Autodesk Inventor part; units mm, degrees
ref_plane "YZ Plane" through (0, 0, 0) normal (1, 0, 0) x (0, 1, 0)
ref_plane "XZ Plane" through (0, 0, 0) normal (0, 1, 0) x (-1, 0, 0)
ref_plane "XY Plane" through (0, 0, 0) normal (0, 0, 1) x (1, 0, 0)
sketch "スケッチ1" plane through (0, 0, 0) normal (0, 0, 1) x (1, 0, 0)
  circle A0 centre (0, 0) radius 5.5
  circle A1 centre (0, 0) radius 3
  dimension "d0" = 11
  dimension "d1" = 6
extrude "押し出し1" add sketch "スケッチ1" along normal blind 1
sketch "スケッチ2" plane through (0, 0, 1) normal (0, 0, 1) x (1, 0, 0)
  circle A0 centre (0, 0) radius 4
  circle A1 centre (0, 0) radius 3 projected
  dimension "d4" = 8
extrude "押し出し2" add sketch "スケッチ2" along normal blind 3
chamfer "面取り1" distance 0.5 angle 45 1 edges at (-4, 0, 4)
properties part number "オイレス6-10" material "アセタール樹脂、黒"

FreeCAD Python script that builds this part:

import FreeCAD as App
import Part
import Sketcher
from FreeCAD import Vector


def edges_at(feature, points):
    """Names of the edges that pass closest to the given points."""
    edges = feature.Shape.Edges
    near = lambda p: min(range(len(edges)), key=lambda i: edges[i].distToShape(Part.Vertex(*p))[0])
    return sorted({f"Edge{near(p) + 1}" for p in points})

doc = App.newDocument("Part")
body = doc.addObject("PartDesign::Body", "Body")

# Sketch on XY plane
sketch1 = body.newObject("Sketcher::SketchObject", "Sketch")
sketch1.AttachmentSupport = (doc.getObject("XY_Plane"), [""])
sketch1.MapMode = "FlatFace"
sketch1.addGeometry([
    Part.Circle(Vector(0, 0, 0), Vector(0, 0, 1), 5.5),
    Part.Circle(Vector(0, 0, 0), Vector(0, 0, 1), 3),
], False)
sketch1.addConstraint([
    Sketcher.Constraint("Coincident", 0, 3, -1, 1),
    Sketcher.Constraint("Coincident", 1, 3, -1, 1),
    Sketcher.Constraint("Diameter", 0, 11.0),
    Sketcher.Constraint("Diameter", 1, 6.0),
])
pad1 = body.newObject("PartDesign::Pad", "Pad")
pad1.Profile = sketch1
pad1.Length = 1

# Sketch on XY plane
sketch2 = body.newObject("Sketcher::SketchObject", "Sketch001")
sketch2.AttachmentSupport = (doc.getObject("XY_Plane"), [""])
sketch2.MapMode = "FlatFace"
sketch2.AttachmentOffset = App.Placement(Vector(0, 0, 1), App.Rotation())
sketch2.addGeometry([
    Part.Circle(Vector(0, 0, 0), Vector(0, 0, 1), 4),
    Part.Circle(Vector(0, 0, 0), Vector(0, 0, 1), 3),
], False)
sketch2.addConstraint([
    Sketcher.Constraint("Coincident", 0, 3, -1, 1),
    Sketcher.Constraint("Coincident", 1, 3, -1, 1),
    Sketcher.Constraint("Diameter", 0, 8.0),
    Sketcher.Constraint("Diameter", 1, 6.0),
])
pad2 = body.newObject("PartDesign::Pad", "Pad001")
pad2.Profile = sketch2
pad2.Length = 3
doc.recompute()

chamfer = body.newObject("PartDesign::Chamfer", "Chamfer")
chamfer.Base = (pad2, edges_at(pad2, [(-4, 0, 4)]))
chamfer.Size = 0.5

doc.recompute()
